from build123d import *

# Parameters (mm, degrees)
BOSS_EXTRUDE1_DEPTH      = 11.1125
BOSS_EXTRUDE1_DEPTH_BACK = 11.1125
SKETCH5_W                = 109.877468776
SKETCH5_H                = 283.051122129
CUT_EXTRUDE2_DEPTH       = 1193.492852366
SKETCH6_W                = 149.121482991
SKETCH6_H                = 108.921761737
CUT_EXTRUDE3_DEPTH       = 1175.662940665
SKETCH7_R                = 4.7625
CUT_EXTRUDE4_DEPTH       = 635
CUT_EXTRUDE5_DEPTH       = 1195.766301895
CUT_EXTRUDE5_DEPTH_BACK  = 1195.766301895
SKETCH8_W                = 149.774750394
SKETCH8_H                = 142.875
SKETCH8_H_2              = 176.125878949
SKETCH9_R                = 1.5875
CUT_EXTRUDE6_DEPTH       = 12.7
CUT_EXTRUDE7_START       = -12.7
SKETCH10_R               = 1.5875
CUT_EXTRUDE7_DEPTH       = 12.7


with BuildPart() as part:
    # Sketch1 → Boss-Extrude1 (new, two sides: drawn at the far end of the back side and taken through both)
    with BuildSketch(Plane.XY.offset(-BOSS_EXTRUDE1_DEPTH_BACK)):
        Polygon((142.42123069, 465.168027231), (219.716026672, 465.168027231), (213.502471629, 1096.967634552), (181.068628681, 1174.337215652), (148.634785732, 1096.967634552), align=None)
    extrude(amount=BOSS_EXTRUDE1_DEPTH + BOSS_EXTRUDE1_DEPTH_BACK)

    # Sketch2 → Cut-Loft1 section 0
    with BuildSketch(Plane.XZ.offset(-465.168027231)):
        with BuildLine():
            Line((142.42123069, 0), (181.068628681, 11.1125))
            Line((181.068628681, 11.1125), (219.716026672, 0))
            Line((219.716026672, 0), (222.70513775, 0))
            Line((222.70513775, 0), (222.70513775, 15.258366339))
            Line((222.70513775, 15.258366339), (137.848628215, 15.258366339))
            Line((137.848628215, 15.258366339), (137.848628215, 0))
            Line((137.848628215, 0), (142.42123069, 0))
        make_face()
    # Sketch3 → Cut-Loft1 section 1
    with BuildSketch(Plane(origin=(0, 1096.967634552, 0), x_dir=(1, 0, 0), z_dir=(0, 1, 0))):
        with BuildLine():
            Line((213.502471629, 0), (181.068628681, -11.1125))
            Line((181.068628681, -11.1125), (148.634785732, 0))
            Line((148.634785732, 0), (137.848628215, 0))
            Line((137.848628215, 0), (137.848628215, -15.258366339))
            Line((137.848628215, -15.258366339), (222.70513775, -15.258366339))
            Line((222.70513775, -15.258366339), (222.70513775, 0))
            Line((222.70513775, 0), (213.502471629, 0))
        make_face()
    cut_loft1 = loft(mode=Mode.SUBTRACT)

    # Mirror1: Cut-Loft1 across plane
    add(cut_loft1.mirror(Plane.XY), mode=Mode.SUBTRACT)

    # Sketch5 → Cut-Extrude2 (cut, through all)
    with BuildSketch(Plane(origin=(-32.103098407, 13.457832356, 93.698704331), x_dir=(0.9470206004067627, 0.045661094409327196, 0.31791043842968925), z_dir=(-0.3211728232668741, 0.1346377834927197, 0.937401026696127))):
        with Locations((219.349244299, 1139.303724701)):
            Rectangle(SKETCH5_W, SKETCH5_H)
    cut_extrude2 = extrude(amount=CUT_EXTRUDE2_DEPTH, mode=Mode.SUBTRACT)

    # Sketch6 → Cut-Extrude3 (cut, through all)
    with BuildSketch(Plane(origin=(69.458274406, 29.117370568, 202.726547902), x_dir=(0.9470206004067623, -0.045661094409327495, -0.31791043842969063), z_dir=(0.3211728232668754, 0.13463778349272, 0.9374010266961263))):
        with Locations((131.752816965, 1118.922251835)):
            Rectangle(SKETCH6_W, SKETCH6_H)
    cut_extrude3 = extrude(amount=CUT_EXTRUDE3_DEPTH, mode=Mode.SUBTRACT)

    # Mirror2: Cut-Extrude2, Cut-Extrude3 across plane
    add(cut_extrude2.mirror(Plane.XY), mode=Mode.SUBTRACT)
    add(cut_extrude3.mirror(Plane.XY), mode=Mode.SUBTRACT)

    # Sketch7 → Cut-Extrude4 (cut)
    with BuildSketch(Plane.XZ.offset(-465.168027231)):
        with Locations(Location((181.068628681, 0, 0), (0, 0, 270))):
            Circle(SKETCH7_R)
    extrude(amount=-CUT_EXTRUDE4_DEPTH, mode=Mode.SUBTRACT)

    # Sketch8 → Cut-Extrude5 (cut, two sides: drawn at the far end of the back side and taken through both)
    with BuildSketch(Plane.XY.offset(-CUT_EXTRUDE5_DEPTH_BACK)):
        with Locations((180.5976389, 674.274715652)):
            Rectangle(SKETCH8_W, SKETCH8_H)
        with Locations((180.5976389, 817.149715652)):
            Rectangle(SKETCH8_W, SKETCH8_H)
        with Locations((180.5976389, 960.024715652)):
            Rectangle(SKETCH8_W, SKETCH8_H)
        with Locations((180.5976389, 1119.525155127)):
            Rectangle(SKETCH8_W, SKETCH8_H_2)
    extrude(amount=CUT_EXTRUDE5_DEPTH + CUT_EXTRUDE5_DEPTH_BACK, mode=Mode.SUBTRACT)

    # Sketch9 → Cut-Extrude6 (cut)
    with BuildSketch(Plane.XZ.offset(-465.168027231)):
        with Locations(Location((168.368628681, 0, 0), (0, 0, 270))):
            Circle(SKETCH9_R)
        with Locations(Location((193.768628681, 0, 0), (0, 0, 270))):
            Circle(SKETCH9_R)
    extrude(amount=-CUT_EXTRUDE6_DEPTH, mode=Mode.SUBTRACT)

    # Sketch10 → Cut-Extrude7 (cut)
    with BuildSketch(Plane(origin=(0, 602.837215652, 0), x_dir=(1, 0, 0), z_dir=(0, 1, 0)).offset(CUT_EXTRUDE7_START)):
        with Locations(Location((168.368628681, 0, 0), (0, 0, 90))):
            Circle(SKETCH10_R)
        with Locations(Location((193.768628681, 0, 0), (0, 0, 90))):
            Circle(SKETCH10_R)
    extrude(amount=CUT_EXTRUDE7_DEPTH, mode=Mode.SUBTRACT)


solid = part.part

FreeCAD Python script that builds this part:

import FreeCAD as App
import Part
import Sketcher

V = App.Vector
Q = App.Units.Quantity


def add_polygon(sketch, points):
    """Adds a closed chain of lines whose ends are joined by coincident constraints."""
    first, n = sketch.GeometryCount, len(points)
    for a, b in zip(points, points[1:] + points[:1]):
        sketch.addGeometry(Part.LineSegment(App.Vector(*a, 0), App.Vector(*b, 0)), False)
    for i in range(n):
        sketch.addConstraint(Sketcher.Constraint("Coincident", first + i, 2, first + (i + 1) % n, 1))

doc = App.newDocument("Part")
body = doc.addObject("PartDesign::Body", "Body")

sketch1 = body.newObject("Sketcher::SketchObject", "Sketch")
sketch1.AttachmentSupport = (doc.getObject("XY_Plane"), [""])
sketch1.MapMode = "FlatFace"
add_polygon(sketch1, [(142, 465), (220, 465), (214, 1097), (181, 1174), (149, 1097)])
sketch1.addConstraint([
    Sketcher.Constraint("Horizontal", 0),
    Sketcher.Constraint("Horizontal", 1, 2, 3, 2),
    Sketcher.Constraint("Equal", 2, 3),
    Sketcher.Constraint("Equal", 1, 4),
    Sketcher.Constraint("Distance", 1, Q("631.830161 mm")),
    Sketcher.Constraint("DistanceX", 0, 1, 0, 2, Q("77.294796 mm")),
    Sketcher.Constraint("DistanceX", -1, 1, 1, 2, Q("213.502472 mm")),
    Sketcher.Constraint("DistanceX", -1, 1, 2, 2, Q("181.068629 mm")),
    Sketcher.Constraint("DistanceY", 1, 2, 2, 2, Q("77.369581 mm")),
    Sketcher.Constraint("DistanceY", -1, 1, 0, 2, Q("465.168027 mm")),
])
pad1 = body.newObject("PartDesign::Pad", "Pad")
pad1.Profile = sketch1
pad1.Type = "TwoLengths"
pad1.Length = Q("0.4375 in")
pad1.Length2 = Q("0.4375 in")

sketch2 = body.newObject("Sketcher::SketchObject", "Sketch001")
sketch2.AttachmentSupport = (doc.getObject("XZ_Plane"), [""])
sketch2.MapMode = "FlatFace"
sketch2.AttachmentOffset = App.Placement(V(0, 0, -465.168027), App.Rotation())
add_polygon(sketch2, [(142.4, 0), (181.1, 11.1), (219.7, 0), (222.7, 0), (222.7, 15.3), (137.8, 15.3), (137.8, 0)])
sketch2.addConstraint([
    Sketcher.Constraint("Horizontal", 2),
    Sketcher.Constraint("Vertical", 3),
    Sketcher.Constraint("Horizontal", 4),
    Sketcher.Constraint("Vertical", 5),
    Sketcher.Constraint("Horizontal", 6),
    Sketcher.Constraint("PointOnObject", 1, 2, -1),
    Sketcher.Constraint("PointOnObject", 5, 2, -1),
    Sketcher.Constraint("Equal", 0, 1),
    Sketcher.Constraint("DistanceY", -1, 1, 0, 2, Q("0.4375 in")),
    Sketcher.Constraint("DistanceX", 2, 1, 2, 2, Q("2.989111 mm")),
    Sketcher.Constraint("DistanceX", 4, 2, 4, 1, Q("84.85651 mm")),
    Sketcher.Constraint("DistanceX", 4, 2, 0, 2, Q("43.22 mm")),
    Sketcher.Constraint("DistanceY", 3, 1, 3, 2, Q("15.258366 mm")),
    Sketcher.Constraint("DistanceX", -1, 1, 0, 2, Q("181.068629 mm")),
])

sketch3 = body.newObject("Sketcher::SketchObject", "Sketch002")
sketch3.AttachmentSupport = (doc.getObject("XZ_Plane"), [""])
sketch3.MapMode = "FlatFace"
sketch3.AttachmentOffset = App.Placement(V(0, 0, -1096.967635), App.Rotation())
add_polygon(sketch3, [(214, 0), (181, 11), (149, 0), (138, 0), (138, 15), (223, 15), (223, 0)])
sketch3.addConstraint([
    Sketcher.Constraint("Horizontal", 2),
    Sketcher.Constraint("Vertical", 3),
    Sketcher.Constraint("Horizontal", 4),
    Sketcher.Constraint("Vertical", 5),
    Sketcher.Constraint("Horizontal", 6),
    Sketcher.Constraint("PointOnObject", 1, 2, -1),
    Sketcher.Constraint("PointOnObject", 5, 2, -1),
    Sketcher.Constraint("Equal", 0, 1),
    Sketcher.Constraint("DistanceY", -1, 1, 0, 2, Q("0.4375 in")),
    Sketcher.Constraint("DistanceX", 4, 1, 4, 2, Q("84.85651 mm")),
    Sketcher.Constraint("DistanceX", 2, 2, 0, 2, Q("43.22 mm")),
    Sketcher.Constraint("DistanceX", 2, 2, 2, 1, Q("10.786158 mm")),
    Sketcher.Constraint("DistanceY", 3, 1, 3, 2, Q("15.258366 mm")),
    Sketcher.Constraint("DistanceX", -1, 1, 0, 2, Q("181.068629 mm")),
])

subtractiveloft = body.newObject("PartDesign::SubtractiveLoft", "SubtractiveLoft")
subtractiveloft.Profile = sketch2
subtractiveloft.Sections = [sketch3]
doc.recompute()

mirrored = body.newObject("PartDesign::Mirrored", "Mirrored")
mirrored.Originals = [subtractiveloft]
mirrored.MirrorPlane = (doc.getObject("XY_Plane"), [""])
body.Tip = mirrored

sketch4 = body.newObject("Sketcher::SketchObject", "Sketch003")
sketch4.Placement = App.Placement(V(-32.103098, 13.457832, 93.698704), App.Rotation(V(0.9470206, 0.045661094, 0.317910438), V(0, 0.989842276, -0.142169857), V(-0.321172823, 0.134637783, 0.937401027), "ZXY"))
add_polygon(sketch4, [(164, 1281), (164, 998), (274, 998), (274, 1281)])
sketch4.addConstraint([
    Sketcher.Constraint("Vertical", 0),
    Sketcher.Constraint("Horizontal", 1),
    Sketcher.Constraint("Vertical", 2),
    Sketcher.Constraint("Horizontal", 3),
    Sketcher.Constraint("DistanceX", 1, 1, 1, 2, Q("109.877469 mm")),
    Sketcher.Constraint("DistanceY", 0, 2, 0, 1, Q("283.051122 mm")),
    Sketcher.Constraint("DistanceX", -1, 1, 0, 2, Q("164.41051 mm")),
    Sketcher.Constraint("DistanceY", -1, 1, 0, 2, Q("997.778163 mm")),
])
pocket1 = body.newObject("PartDesign::Pocket", "Pocket")
pocket1.Profile = sketch4
pocket1.Type = "ThroughAll"
pocket1.Reversed = True

sketch5 = body.newObject("Sketcher::SketchObject", "Sketch004")
sketch5.Placement = App.Placement(V(69.458274, 29.117371, 202.726548), App.Rotation(V(0.9470206, -0.045661094, -0.317910438), V(0, 0.989842276, -0.142169857), V(0.321172823, 0.134637783, 0.937401027), "ZXY"))
add_polygon(sketch5, [(57, 1173), (57, 1064), (206, 1064), (206, 1173)])
sketch5.addConstraint([
    Sketcher.Constraint("Vertical", 0),
    Sketcher.Constraint("Horizontal", 1),
    Sketcher.Constraint("Vertical", 2),
    Sketcher.Constraint("Horizontal", 3),
    Sketcher.Constraint("DistanceY", 0, 2, 0, 1, Q("108.921762 mm")),
    Sketcher.Constraint("DistanceX", 1, 1, 1, 2, Q("149.121483 mm")),
    Sketcher.Constraint("DistanceY", -1, 1, 0, 2, Q("1064.46137 mm")),
    Sketcher.Constraint("DistanceX", -1, 1, 1, 2, Q("206.313558 mm")),
])
pocket2 = body.newObject("PartDesign::Pocket", "Pocket001")
pocket2.Profile = sketch5
pocket2.Type = "ThroughAll"
pocket2.Reversed = True
doc.recompute()

mirrored2 = body.newObject("PartDesign::Mirrored", "Mirrored001")
mirrored2.Originals = [pocket1, pocket2]
mirrored2.MirrorPlane = (doc.getObject("XY_Plane"), [""])
body.Tip = mirrored2

sketch6 = body.newObject("Sketcher::SketchObject", "Sketch005")
sketch6.AttachmentSupport = (doc.getObject("XZ_Plane"), [""])
sketch6.MapMode = "FlatFace"
sketch6.AttachmentOffset = App.Placement(V(0, 0, -465.168027), App.Rotation())
sketch6.addGeometry(Part.Circle(V(181.1, 0, 0), V(0, 0, 1), 4.8), False)
sketch6.addConstraint([
    Sketcher.Constraint("PointOnObject", 0, 3, -1),
    Sketcher.Constraint("Diameter", 0, Q("0.375 in")),
    Sketcher.Constraint("DistanceX", -1, 1, 0, 3, Q("181.068629 mm")),
])
pocket3 = body.newObject("PartDesign::Pocket", "Pocket002")
pocket3.Profile = sketch6
pocket3.Length = Q("25 in")

sketch7 = body.newObject("Sketcher::SketchObject", "Sketch006")
sketch7.AttachmentSupport = (doc.getObject("XY_Plane"), [""])
sketch7.MapMode = "FlatFace"
add_polygon(sketch7, [(106, 603), (255, 603), (255, 1208), (106, 1208)])
sketch7.addConstraint([
    Sketcher.Constraint("Horizontal", 0),
    Sketcher.Constraint("Vertical", 1),
    Sketcher.Constraint("Horizontal", 2),
    Sketcher.Constraint("Vertical", 3),
    Sketcher.Constraint("DistanceX", 0, 1, 0, 2, Q("149.77475 mm")),
    Sketcher.Constraint("DistanceY", 1, 1, 1, 2, Q("604.750879 mm")),
    Sketcher.Constraint("DistanceX", -1, 1, 0, 2, Q("255.485014 mm")),
    Sketcher.Constraint("DistanceY", -1, 1, 0, 2, Q("602.837216 mm")),
])
pocket4 = body.newObject("PartDesign::Pocket", "Pocket003")
pocket4.Profile = sketch7
pocket4.Type = "ThroughAll"
pocket4.Midplane = True

sketch8 = body.newObject("Sketcher::SketchObject", "Sketch007")
sketch8.AttachmentSupport = (doc.getObject("XZ_Plane"), [""])
sketch8.MapMode = "FlatFace"
sketch8.AttachmentOffset = App.Placement(V(0, 0, -465.168027), App.Rotation())
sketch8.addGeometry([
    Part.Circle(V(168.4, 0, 0), V(0, 0, 1), 1.6),
    Part.Circle(V(193.8, 0, 0), V(0, 0, 1), 1.6),
], False)
sketch8.addConstraint([
    Sketcher.Constraint("Equal", 0, 1),
    Sketcher.Constraint("PointOnObject", 0, 3, -1),
    Sketcher.Constraint("PointOnObject", 1, 3, -1),
    Sketcher.Constraint("Diameter", 0, Q("0.125 in")),
    Sketcher.Constraint("DistanceX", 0, 3, 1, 3, Q("1 in")),
    Sketcher.Constraint("DistanceX", -1, 1, 0, 3, Q("168.368629 mm")),
])
pocket5 = body.newObject("PartDesign::Pocket", "Pocket004")
pocket5.Profile = sketch8
pocket5.Length = Q("0.5 in")

sketch9 = body.newObject("Sketcher::SketchObject", "Sketch008")
sketch9.AttachmentSupport = (doc.getObject("XZ_Plane"), [""])
sketch9.MapMode = "FlatFace"
sketch9.AttachmentOffset = App.Placement(V(0, 0, -590.137216), App.Rotation())
sketch9.addGeometry([
    Part.Circle(V(168.4, 0, 0), V(0, 0, 1), 1.6),
    Part.Circle(V(193.8, 0, 0), V(0, 0, 1), 1.6),
], False)
sketch9.addConstraint([
    Sketcher.Constraint("Equal", 0, 1),
    Sketcher.Constraint("PointOnObject", 0, 3, -1),
    Sketcher.Constraint("PointOnObject", 1, 3, -1),
    Sketcher.Constraint("Diameter", 0, Q("0.125 in")),
    Sketcher.Constraint("DistanceX", 0, 3, 1, 3, Q("1 in")),
    Sketcher.Constraint("DistanceX", -1, 1, 0, 3, Q("168.368629 mm")),
])
pocket6 = body.newObject("PartDesign::Pocket", "Pocket005")
pocket6.Profile = sketch9
pocket6.Length = Q("0.5 in")

doc.recompute()
